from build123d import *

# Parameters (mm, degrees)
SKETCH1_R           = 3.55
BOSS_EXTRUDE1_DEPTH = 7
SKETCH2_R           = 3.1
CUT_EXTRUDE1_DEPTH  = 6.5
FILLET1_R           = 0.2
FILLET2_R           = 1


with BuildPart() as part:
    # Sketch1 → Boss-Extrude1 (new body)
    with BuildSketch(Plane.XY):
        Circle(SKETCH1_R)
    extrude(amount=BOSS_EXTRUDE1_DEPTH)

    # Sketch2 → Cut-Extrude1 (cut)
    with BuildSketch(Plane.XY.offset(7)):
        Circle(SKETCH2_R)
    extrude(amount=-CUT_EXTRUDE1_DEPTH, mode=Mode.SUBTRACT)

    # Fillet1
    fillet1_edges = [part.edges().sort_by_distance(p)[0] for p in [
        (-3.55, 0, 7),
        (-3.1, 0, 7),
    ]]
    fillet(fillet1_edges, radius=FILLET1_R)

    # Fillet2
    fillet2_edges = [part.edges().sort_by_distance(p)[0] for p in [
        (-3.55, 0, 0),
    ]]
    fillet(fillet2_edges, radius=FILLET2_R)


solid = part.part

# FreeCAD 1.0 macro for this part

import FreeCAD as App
import Part
import Sketcher
from FreeCAD import Vector
Q = App.Units.Quantity


def edges_at(feature, points):
    """Names of the edges that pass closest to the given points."""
    edges = feature.Shape.Edges
    near = lambda p: min(range(len(edges)), key=lambda i: edges[i].distToShape(Part.Vertex(*p))[0])
    return sorted({f"Edge{near(p) + 1}" for p in points})

doc = App.newDocument("Part")
params = doc.addObject("Spreadsheet::Sheet", "Params")
for row, (alias, value) in enumerate([
    ("sketch1_diameter", "7.1 mm"),
    ("pad1_length", "7 mm"),
    ("sketch2_diameter", "6.2 mm"),
    ("pocket1_length", "6.5 mm"),
    ("fillet_radius", "0.2 mm"),
    ("fillet2_radius", "1 mm"),
], start=1):
    params.set(f"A{row}", alias)
    params.set(f"B{row}", "=" + value)
    params.setAlias(f"B{row}", alias)

body = doc.addObject("PartDesign::Body", "Body")

# Sketch on XY plane
sketch1 = body.newObject("Sketcher::SketchObject", "Sketch")
sketch1.AttachmentSupport = (doc.getObject("XY_Plane"), [""])
sketch1.MapMode = "FlatFace"
sketch1.addGeometry(Part.Circle(Vector(0, 0, 0), Vector(0, 0, 1), 3.55), False)
sketch1.addConstraint([
    Sketcher.Constraint("Coincident", 0, 3, -1, 1),
    Sketcher.Constraint("Diameter", 0, Q("7.1 mm")),
])
sketch1.setExpression("Constraints[1]", "Params.sketch1_diameter")
pad1 = body.newObject("PartDesign::Pad", "Pad")
pad1.Profile = sketch1
pad1.setExpression("Length", "Params.pad1_length")

# Sketch on XY plane
sketch2 = body.newObject("Sketcher::SketchObject", "Sketch001")
sketch2.AttachmentSupport = (doc.getObject("XY_Plane"), [""])
sketch2.MapMode = "FlatFace"
sketch2.AttachmentOffset = App.Placement(Vector(0, 0, 7), App.Rotation())
sketch2.addGeometry(Part.Circle(Vector(0, 0, 0), Vector(0, 0, 1), 3.1), False)
sketch2.addConstraint([
    Sketcher.Constraint("Coincident", 0, 3, -1, 1),
    Sketcher.Constraint("Diameter", 0, Q("6.2 mm")),
])
sketch2.setExpression("Constraints[1]", "Params.sketch2_diameter")
pocket1 = body.newObject("PartDesign::Pocket", "Pocket")
pocket1.Profile = sketch2
pocket1.setExpression("Length", "Params.pocket1_length")
doc.recompute()

fillet = body.newObject("PartDesign::Fillet", "Fillet")
fillet.Base = (pocket1, edges_at(pocket1, [(-3.55, 0, 7), (-3.1, 0, 7)]))
fillet.setExpression("Radius", "Params.fillet_radius")
doc.recompute()

fillet2 = body.newObject("PartDesign::Fillet", "Fillet001")
fillet2.Base = (fillet, edges_at(fillet, [(-3.55, 0, 0)]))
fillet2.setExpression("Radius", "Params.fillet2_radius")

doc.recompute()
